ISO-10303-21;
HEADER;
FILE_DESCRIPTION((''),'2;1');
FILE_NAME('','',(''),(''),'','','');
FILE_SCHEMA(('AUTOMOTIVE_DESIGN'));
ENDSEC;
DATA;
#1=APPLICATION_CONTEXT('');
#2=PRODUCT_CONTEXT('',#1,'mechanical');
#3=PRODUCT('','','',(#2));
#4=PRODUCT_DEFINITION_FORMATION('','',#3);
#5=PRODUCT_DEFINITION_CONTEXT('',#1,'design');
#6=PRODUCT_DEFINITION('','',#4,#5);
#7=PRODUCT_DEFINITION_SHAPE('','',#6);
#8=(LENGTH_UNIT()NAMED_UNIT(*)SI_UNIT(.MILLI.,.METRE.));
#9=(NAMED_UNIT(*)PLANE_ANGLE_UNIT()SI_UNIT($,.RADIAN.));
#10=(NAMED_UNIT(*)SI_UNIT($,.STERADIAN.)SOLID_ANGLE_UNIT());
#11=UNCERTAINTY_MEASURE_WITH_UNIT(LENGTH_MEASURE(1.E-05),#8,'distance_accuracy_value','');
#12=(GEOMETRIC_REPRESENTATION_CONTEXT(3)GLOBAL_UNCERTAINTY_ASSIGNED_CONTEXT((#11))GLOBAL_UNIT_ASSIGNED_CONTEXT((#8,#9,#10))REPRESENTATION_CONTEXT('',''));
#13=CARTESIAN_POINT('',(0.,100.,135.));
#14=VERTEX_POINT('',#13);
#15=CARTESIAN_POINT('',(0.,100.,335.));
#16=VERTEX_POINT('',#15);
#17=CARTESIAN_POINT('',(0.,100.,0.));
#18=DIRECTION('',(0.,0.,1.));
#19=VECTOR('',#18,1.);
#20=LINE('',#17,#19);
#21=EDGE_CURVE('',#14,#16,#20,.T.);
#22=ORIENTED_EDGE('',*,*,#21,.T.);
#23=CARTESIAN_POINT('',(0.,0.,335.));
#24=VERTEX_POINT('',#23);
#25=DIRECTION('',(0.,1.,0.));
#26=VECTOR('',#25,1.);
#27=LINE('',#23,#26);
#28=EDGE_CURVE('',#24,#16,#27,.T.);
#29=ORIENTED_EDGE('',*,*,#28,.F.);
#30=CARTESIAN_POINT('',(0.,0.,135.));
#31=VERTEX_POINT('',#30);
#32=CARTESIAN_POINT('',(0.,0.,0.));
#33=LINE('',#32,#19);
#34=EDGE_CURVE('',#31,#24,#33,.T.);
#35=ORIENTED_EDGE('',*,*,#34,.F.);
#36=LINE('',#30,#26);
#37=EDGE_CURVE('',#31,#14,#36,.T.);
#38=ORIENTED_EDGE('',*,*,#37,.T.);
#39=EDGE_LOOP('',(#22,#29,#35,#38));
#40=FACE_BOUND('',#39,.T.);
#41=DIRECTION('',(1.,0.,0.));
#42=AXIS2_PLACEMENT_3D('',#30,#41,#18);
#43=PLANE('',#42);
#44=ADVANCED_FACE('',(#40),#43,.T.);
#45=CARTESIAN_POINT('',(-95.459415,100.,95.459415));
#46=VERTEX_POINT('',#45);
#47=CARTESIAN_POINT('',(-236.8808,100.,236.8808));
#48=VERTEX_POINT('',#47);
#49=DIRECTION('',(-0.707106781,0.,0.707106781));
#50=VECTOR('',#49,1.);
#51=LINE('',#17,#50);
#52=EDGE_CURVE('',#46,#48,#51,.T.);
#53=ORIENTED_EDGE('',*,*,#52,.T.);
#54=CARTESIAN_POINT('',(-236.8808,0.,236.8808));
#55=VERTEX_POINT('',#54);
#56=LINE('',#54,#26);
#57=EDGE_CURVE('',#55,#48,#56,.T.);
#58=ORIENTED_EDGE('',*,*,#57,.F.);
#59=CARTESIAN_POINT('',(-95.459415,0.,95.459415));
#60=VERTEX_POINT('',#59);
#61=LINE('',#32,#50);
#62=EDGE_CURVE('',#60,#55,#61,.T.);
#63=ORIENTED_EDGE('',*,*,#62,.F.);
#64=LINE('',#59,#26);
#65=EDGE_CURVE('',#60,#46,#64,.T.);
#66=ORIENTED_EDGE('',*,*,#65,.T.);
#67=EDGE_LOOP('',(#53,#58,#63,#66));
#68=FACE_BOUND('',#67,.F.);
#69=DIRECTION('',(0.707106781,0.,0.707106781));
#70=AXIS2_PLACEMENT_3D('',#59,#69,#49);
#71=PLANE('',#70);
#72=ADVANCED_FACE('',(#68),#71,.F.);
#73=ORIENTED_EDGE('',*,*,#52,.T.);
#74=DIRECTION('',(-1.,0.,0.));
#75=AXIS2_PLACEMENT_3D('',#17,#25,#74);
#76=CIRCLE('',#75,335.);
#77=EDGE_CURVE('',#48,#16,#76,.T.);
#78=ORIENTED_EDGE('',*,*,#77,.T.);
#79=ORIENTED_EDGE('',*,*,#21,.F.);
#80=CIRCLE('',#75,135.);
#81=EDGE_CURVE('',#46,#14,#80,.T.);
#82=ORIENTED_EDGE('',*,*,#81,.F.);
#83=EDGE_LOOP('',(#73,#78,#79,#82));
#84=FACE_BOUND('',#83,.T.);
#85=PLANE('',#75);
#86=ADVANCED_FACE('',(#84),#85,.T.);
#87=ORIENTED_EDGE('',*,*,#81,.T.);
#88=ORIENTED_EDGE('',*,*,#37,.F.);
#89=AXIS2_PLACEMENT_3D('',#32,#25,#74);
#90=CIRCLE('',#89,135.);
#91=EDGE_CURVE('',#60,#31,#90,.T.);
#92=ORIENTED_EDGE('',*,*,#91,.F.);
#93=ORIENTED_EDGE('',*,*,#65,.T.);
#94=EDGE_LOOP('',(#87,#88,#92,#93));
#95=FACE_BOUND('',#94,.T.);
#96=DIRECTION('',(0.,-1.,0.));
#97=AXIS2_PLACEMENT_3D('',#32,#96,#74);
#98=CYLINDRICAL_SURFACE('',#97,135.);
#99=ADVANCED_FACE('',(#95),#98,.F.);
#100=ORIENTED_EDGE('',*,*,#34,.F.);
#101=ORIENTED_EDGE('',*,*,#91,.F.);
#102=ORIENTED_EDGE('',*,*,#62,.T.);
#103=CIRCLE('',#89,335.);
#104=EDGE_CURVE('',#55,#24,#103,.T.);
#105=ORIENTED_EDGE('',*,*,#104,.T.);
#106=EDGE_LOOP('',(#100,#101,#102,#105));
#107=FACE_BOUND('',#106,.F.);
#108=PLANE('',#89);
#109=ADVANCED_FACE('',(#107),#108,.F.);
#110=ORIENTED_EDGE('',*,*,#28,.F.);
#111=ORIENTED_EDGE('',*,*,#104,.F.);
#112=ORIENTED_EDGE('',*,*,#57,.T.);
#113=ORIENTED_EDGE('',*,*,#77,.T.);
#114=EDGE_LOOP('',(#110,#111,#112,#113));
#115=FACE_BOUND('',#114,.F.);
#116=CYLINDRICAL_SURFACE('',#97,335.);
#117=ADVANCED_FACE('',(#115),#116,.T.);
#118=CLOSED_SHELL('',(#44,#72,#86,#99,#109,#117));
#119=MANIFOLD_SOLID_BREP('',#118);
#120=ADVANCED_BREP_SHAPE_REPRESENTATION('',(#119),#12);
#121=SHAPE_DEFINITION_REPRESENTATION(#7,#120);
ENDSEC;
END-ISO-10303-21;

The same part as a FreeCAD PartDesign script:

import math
import FreeCAD as App
import Part
import Sketcher
Q = App.Units.Quantity

doc = App.newDocument("Part")
body = doc.addObject("PartDesign::Body", "Body")

# Sketch on XZ plane
sketch1 = body.newObject("Sketcher::SketchObject", "Sketch")
sketch1.AttachmentSupport = (doc.getObject("XZ_Plane"), [""])
sketch1.MapMode = "FlatFace"
sketch1.addGeometry(Part.ArcOfCircle(Part.Circle(App.Vector(0, 0, 0), App.Vector(0, 0, 1), 135), math.radians(90), math.radians(135)), False)
sketch1.addGeometry(Part.LineSegment(App.Vector(-95, 95, 0), App.Vector(-237, 237, 0)), False)
sketch1.addGeometry(Part.ArcOfCircle(Part.Circle(App.Vector(0, 0, 0), App.Vector(0, 0, 1), 335), math.radians(90), math.radians(135)), False)
sketch1.addGeometry(Part.LineSegment(App.Vector(0, 335, 0), App.Vector(0, 135, 0)), False)
sketch1.addConstraint(Sketcher.Constraint("Coincident", 0, 2, 1, 1))
sketch1.addConstraint(Sketcher.Constraint("Coincident", 1, 2, 2, 2))
sketch1.addConstraint(Sketcher.Constraint("Coincident", 2, 1, 3, 1))
sketch1.addConstraint(Sketcher.Constraint("Coincident", 3, 2, 0, 1))
sketch1.addConstraint(Sketcher.Constraint("Vertical", 3))
sketch1.addConstraint(Sketcher.Constraint("Coincident", 0, 3, -1, 1))
sketch1.addConstraint(Sketcher.Constraint("Coincident", 2, 3, -1, 1))
sketch1.addConstraint(Sketcher.Constraint("PointOnObject", 2, 1, -2))
sketch1.addConstraint(Sketcher.Constraint("Radius", 0, 135.0))
sketch1.addConstraint(Sketcher.Constraint("Radius", 2, 335.0))
sketch1.addConstraint(Sketcher.Constraint("Angle", 1, Q("135 deg")))
sketch1.addConstraint(Sketcher.Constraint("DistanceX", 0, 2, -1, 1, 95.4594))
pad1 = body.newObject("PartDesign::Pad", "Pad")
pad1.Profile = sketch1
pad1.Length = 100
pad1.Reversed = True

doc.recompute()
